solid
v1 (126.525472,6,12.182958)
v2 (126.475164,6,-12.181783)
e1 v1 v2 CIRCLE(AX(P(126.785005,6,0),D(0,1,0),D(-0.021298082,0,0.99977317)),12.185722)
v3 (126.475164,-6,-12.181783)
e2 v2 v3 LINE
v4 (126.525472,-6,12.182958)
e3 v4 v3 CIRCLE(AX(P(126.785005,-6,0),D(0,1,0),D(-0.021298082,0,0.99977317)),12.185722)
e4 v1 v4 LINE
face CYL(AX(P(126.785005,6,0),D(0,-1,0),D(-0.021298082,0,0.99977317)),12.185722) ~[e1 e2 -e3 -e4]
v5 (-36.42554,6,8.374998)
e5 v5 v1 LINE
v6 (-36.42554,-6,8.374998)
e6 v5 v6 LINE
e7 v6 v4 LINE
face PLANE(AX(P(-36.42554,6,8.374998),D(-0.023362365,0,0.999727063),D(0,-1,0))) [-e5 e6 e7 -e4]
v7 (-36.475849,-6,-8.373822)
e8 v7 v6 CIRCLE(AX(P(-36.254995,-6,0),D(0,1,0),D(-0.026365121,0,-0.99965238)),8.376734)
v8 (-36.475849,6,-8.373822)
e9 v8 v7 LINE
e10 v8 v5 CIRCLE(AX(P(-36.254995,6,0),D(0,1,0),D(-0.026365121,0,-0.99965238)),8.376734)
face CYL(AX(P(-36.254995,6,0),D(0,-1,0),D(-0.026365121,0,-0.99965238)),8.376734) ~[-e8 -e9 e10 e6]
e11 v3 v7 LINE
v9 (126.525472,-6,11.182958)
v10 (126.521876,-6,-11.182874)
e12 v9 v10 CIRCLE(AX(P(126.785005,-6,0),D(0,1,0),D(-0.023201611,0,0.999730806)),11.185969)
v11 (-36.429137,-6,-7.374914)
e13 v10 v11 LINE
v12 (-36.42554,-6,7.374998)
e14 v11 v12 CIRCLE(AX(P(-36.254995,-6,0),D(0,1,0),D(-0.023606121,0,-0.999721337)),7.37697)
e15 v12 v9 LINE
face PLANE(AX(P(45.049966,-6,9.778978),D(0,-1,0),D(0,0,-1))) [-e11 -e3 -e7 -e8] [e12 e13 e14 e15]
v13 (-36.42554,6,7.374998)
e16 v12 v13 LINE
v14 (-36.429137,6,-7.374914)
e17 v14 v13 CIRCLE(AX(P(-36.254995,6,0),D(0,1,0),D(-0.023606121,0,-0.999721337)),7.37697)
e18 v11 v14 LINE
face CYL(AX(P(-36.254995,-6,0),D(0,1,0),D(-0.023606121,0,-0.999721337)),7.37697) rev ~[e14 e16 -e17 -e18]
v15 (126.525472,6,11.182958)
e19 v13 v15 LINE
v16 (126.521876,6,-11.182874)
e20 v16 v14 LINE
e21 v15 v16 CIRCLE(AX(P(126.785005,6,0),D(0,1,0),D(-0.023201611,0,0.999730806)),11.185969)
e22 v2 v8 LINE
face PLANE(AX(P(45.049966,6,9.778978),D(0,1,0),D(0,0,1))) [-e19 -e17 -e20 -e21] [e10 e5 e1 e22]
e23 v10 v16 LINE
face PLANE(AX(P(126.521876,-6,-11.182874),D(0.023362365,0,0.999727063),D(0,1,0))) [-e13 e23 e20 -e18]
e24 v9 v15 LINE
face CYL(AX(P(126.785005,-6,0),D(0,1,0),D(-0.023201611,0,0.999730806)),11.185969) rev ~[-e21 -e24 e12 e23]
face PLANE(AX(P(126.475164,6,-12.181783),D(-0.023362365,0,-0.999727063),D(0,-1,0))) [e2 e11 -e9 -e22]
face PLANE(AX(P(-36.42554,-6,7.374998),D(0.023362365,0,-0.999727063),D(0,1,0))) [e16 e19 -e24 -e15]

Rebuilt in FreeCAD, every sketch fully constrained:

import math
import FreeCAD as App
import Part
import Sketcher

V = App.Vector


def add_polygon(sketch, points):
    """Adds a closed chain of lines whose ends are joined by coincident constraints."""
    first, n = sketch.GeometryCount, len(points)
    for a, b in zip(points, points[1:] + points[:1]):
        sketch.addGeometry(Part.LineSegment(App.Vector(*a, 0), App.Vector(*b, 0)), False)
    for i in range(n):
        sketch.addConstraint(Sketcher.Constraint("Coincident", first + i, 2, first + (i + 1) % n, 1))

doc = App.newDocument("Part")
body = doc.addObject("PartDesign::Body", "Body")

sketch1 = doc.addObject("Sketcher::SketchObject", "Sketch")
body.addObject(sketch1)
sketch1.AttachmentSupport = (doc.YZ_Plane, [""])
sketch1.MapMode = "FlatFace"
sketch1.AttachmentOffset = App.Placement(V(0, 0, 126.525472), App.Rotation())
add_polygon(sketch1, [(-6, 11.182958), (6, 11.182958), (6, 12.182958), (-6, 12.182958)])
sketch1.addConstraint(Sketcher.Constraint("Horizontal", 0))
sketch1.addConstraint(Sketcher.Constraint("Vertical", 1))
sketch1.addConstraint(Sketcher.Constraint("Horizontal", 2))
sketch1.addConstraint(Sketcher.Constraint("Vertical", 3))
sketch1.addConstraint(Sketcher.Constraint("DistanceX", 0, 1, 0, 2, 12.0))
sketch1.addConstraint(Sketcher.Constraint("DistanceY", 1, 1, 1, 2, 1.0))
sketch1.addConstraint(Sketcher.Constraint("DistanceX", -1, 1, 0, 2, 6.0))
sketch1.addConstraint(Sketcher.Constraint("DistanceY", -1, 1, 0, 2, 11.182958))

sketch2 = doc.addObject("Sketcher::SketchObject", "Sketch001")
body.addObject(sketch2)
sketch2.AttachmentSupport = (doc.XZ_Plane, [""])
sketch2.MapMode = "FlatFace"
sketch2.addGeometry(Part.LineSegment(V(-36.42554, 7.298008, 0), V(126.525472, 11.105968, 0)), False)
sketch2.addGeometry(Part.ArcOfCircle(Part.Circle(V(126.785005, 0, 0), V(0, 0, 1), 11.109), math.radians(-91.338687), math.radians(91.338687)), False)
sketch2.addGeometry(Part.LineSegment(V(126.525472, -11.105968, 0), V(-36.42554, -7.298008, 0)), False)
sketch2.addGeometry(Part.ArcOfCircle(Part.Circle(V(-36.254995, 0, 0), V(0, 0, 1), 7.3), math.radians(91.338687), math.radians(268.661313)), False)
sketch2.addConstraint(Sketcher.Constraint("Tangent", 0, 2, 1, 2))
sketch2.addConstraint(Sketcher.Constraint("Tangent", 1, 1, 2, 1))
sketch2.addConstraint(Sketcher.Constraint("Tangent", 2, 2, 3, 2))
sketch2.addConstraint(Sketcher.Constraint("Tangent", 3, 1, 0, 1))
sketch2.addConstraint(Sketcher.Constraint("Symmetric", 0, 2, 1, 1, -1))
sketch2.addConstraint(Sketcher.Constraint("Radius", 3, 7.3))
sketch2.addConstraint(Sketcher.Constraint("Radius", 1, 11.109))
sketch2.addConstraint(Sketcher.Constraint("DistanceX", 3, 3, 1, 3, 163.04))
sketch2.addConstraint(Sketcher.Constraint("DistanceX", 2, 2, -1, 1, 36.42554))
doc.recompute()

additivepipe = doc.addObject("PartDesign::AdditivePipe", "AdditivePipe")
body.addObject(additivepipe)
additivepipe.Profile = sketch1
additivepipe.Spine = (sketch2, ["Edge1", "Edge2", "Edge3", "Edge4"])

doc.recompute()
